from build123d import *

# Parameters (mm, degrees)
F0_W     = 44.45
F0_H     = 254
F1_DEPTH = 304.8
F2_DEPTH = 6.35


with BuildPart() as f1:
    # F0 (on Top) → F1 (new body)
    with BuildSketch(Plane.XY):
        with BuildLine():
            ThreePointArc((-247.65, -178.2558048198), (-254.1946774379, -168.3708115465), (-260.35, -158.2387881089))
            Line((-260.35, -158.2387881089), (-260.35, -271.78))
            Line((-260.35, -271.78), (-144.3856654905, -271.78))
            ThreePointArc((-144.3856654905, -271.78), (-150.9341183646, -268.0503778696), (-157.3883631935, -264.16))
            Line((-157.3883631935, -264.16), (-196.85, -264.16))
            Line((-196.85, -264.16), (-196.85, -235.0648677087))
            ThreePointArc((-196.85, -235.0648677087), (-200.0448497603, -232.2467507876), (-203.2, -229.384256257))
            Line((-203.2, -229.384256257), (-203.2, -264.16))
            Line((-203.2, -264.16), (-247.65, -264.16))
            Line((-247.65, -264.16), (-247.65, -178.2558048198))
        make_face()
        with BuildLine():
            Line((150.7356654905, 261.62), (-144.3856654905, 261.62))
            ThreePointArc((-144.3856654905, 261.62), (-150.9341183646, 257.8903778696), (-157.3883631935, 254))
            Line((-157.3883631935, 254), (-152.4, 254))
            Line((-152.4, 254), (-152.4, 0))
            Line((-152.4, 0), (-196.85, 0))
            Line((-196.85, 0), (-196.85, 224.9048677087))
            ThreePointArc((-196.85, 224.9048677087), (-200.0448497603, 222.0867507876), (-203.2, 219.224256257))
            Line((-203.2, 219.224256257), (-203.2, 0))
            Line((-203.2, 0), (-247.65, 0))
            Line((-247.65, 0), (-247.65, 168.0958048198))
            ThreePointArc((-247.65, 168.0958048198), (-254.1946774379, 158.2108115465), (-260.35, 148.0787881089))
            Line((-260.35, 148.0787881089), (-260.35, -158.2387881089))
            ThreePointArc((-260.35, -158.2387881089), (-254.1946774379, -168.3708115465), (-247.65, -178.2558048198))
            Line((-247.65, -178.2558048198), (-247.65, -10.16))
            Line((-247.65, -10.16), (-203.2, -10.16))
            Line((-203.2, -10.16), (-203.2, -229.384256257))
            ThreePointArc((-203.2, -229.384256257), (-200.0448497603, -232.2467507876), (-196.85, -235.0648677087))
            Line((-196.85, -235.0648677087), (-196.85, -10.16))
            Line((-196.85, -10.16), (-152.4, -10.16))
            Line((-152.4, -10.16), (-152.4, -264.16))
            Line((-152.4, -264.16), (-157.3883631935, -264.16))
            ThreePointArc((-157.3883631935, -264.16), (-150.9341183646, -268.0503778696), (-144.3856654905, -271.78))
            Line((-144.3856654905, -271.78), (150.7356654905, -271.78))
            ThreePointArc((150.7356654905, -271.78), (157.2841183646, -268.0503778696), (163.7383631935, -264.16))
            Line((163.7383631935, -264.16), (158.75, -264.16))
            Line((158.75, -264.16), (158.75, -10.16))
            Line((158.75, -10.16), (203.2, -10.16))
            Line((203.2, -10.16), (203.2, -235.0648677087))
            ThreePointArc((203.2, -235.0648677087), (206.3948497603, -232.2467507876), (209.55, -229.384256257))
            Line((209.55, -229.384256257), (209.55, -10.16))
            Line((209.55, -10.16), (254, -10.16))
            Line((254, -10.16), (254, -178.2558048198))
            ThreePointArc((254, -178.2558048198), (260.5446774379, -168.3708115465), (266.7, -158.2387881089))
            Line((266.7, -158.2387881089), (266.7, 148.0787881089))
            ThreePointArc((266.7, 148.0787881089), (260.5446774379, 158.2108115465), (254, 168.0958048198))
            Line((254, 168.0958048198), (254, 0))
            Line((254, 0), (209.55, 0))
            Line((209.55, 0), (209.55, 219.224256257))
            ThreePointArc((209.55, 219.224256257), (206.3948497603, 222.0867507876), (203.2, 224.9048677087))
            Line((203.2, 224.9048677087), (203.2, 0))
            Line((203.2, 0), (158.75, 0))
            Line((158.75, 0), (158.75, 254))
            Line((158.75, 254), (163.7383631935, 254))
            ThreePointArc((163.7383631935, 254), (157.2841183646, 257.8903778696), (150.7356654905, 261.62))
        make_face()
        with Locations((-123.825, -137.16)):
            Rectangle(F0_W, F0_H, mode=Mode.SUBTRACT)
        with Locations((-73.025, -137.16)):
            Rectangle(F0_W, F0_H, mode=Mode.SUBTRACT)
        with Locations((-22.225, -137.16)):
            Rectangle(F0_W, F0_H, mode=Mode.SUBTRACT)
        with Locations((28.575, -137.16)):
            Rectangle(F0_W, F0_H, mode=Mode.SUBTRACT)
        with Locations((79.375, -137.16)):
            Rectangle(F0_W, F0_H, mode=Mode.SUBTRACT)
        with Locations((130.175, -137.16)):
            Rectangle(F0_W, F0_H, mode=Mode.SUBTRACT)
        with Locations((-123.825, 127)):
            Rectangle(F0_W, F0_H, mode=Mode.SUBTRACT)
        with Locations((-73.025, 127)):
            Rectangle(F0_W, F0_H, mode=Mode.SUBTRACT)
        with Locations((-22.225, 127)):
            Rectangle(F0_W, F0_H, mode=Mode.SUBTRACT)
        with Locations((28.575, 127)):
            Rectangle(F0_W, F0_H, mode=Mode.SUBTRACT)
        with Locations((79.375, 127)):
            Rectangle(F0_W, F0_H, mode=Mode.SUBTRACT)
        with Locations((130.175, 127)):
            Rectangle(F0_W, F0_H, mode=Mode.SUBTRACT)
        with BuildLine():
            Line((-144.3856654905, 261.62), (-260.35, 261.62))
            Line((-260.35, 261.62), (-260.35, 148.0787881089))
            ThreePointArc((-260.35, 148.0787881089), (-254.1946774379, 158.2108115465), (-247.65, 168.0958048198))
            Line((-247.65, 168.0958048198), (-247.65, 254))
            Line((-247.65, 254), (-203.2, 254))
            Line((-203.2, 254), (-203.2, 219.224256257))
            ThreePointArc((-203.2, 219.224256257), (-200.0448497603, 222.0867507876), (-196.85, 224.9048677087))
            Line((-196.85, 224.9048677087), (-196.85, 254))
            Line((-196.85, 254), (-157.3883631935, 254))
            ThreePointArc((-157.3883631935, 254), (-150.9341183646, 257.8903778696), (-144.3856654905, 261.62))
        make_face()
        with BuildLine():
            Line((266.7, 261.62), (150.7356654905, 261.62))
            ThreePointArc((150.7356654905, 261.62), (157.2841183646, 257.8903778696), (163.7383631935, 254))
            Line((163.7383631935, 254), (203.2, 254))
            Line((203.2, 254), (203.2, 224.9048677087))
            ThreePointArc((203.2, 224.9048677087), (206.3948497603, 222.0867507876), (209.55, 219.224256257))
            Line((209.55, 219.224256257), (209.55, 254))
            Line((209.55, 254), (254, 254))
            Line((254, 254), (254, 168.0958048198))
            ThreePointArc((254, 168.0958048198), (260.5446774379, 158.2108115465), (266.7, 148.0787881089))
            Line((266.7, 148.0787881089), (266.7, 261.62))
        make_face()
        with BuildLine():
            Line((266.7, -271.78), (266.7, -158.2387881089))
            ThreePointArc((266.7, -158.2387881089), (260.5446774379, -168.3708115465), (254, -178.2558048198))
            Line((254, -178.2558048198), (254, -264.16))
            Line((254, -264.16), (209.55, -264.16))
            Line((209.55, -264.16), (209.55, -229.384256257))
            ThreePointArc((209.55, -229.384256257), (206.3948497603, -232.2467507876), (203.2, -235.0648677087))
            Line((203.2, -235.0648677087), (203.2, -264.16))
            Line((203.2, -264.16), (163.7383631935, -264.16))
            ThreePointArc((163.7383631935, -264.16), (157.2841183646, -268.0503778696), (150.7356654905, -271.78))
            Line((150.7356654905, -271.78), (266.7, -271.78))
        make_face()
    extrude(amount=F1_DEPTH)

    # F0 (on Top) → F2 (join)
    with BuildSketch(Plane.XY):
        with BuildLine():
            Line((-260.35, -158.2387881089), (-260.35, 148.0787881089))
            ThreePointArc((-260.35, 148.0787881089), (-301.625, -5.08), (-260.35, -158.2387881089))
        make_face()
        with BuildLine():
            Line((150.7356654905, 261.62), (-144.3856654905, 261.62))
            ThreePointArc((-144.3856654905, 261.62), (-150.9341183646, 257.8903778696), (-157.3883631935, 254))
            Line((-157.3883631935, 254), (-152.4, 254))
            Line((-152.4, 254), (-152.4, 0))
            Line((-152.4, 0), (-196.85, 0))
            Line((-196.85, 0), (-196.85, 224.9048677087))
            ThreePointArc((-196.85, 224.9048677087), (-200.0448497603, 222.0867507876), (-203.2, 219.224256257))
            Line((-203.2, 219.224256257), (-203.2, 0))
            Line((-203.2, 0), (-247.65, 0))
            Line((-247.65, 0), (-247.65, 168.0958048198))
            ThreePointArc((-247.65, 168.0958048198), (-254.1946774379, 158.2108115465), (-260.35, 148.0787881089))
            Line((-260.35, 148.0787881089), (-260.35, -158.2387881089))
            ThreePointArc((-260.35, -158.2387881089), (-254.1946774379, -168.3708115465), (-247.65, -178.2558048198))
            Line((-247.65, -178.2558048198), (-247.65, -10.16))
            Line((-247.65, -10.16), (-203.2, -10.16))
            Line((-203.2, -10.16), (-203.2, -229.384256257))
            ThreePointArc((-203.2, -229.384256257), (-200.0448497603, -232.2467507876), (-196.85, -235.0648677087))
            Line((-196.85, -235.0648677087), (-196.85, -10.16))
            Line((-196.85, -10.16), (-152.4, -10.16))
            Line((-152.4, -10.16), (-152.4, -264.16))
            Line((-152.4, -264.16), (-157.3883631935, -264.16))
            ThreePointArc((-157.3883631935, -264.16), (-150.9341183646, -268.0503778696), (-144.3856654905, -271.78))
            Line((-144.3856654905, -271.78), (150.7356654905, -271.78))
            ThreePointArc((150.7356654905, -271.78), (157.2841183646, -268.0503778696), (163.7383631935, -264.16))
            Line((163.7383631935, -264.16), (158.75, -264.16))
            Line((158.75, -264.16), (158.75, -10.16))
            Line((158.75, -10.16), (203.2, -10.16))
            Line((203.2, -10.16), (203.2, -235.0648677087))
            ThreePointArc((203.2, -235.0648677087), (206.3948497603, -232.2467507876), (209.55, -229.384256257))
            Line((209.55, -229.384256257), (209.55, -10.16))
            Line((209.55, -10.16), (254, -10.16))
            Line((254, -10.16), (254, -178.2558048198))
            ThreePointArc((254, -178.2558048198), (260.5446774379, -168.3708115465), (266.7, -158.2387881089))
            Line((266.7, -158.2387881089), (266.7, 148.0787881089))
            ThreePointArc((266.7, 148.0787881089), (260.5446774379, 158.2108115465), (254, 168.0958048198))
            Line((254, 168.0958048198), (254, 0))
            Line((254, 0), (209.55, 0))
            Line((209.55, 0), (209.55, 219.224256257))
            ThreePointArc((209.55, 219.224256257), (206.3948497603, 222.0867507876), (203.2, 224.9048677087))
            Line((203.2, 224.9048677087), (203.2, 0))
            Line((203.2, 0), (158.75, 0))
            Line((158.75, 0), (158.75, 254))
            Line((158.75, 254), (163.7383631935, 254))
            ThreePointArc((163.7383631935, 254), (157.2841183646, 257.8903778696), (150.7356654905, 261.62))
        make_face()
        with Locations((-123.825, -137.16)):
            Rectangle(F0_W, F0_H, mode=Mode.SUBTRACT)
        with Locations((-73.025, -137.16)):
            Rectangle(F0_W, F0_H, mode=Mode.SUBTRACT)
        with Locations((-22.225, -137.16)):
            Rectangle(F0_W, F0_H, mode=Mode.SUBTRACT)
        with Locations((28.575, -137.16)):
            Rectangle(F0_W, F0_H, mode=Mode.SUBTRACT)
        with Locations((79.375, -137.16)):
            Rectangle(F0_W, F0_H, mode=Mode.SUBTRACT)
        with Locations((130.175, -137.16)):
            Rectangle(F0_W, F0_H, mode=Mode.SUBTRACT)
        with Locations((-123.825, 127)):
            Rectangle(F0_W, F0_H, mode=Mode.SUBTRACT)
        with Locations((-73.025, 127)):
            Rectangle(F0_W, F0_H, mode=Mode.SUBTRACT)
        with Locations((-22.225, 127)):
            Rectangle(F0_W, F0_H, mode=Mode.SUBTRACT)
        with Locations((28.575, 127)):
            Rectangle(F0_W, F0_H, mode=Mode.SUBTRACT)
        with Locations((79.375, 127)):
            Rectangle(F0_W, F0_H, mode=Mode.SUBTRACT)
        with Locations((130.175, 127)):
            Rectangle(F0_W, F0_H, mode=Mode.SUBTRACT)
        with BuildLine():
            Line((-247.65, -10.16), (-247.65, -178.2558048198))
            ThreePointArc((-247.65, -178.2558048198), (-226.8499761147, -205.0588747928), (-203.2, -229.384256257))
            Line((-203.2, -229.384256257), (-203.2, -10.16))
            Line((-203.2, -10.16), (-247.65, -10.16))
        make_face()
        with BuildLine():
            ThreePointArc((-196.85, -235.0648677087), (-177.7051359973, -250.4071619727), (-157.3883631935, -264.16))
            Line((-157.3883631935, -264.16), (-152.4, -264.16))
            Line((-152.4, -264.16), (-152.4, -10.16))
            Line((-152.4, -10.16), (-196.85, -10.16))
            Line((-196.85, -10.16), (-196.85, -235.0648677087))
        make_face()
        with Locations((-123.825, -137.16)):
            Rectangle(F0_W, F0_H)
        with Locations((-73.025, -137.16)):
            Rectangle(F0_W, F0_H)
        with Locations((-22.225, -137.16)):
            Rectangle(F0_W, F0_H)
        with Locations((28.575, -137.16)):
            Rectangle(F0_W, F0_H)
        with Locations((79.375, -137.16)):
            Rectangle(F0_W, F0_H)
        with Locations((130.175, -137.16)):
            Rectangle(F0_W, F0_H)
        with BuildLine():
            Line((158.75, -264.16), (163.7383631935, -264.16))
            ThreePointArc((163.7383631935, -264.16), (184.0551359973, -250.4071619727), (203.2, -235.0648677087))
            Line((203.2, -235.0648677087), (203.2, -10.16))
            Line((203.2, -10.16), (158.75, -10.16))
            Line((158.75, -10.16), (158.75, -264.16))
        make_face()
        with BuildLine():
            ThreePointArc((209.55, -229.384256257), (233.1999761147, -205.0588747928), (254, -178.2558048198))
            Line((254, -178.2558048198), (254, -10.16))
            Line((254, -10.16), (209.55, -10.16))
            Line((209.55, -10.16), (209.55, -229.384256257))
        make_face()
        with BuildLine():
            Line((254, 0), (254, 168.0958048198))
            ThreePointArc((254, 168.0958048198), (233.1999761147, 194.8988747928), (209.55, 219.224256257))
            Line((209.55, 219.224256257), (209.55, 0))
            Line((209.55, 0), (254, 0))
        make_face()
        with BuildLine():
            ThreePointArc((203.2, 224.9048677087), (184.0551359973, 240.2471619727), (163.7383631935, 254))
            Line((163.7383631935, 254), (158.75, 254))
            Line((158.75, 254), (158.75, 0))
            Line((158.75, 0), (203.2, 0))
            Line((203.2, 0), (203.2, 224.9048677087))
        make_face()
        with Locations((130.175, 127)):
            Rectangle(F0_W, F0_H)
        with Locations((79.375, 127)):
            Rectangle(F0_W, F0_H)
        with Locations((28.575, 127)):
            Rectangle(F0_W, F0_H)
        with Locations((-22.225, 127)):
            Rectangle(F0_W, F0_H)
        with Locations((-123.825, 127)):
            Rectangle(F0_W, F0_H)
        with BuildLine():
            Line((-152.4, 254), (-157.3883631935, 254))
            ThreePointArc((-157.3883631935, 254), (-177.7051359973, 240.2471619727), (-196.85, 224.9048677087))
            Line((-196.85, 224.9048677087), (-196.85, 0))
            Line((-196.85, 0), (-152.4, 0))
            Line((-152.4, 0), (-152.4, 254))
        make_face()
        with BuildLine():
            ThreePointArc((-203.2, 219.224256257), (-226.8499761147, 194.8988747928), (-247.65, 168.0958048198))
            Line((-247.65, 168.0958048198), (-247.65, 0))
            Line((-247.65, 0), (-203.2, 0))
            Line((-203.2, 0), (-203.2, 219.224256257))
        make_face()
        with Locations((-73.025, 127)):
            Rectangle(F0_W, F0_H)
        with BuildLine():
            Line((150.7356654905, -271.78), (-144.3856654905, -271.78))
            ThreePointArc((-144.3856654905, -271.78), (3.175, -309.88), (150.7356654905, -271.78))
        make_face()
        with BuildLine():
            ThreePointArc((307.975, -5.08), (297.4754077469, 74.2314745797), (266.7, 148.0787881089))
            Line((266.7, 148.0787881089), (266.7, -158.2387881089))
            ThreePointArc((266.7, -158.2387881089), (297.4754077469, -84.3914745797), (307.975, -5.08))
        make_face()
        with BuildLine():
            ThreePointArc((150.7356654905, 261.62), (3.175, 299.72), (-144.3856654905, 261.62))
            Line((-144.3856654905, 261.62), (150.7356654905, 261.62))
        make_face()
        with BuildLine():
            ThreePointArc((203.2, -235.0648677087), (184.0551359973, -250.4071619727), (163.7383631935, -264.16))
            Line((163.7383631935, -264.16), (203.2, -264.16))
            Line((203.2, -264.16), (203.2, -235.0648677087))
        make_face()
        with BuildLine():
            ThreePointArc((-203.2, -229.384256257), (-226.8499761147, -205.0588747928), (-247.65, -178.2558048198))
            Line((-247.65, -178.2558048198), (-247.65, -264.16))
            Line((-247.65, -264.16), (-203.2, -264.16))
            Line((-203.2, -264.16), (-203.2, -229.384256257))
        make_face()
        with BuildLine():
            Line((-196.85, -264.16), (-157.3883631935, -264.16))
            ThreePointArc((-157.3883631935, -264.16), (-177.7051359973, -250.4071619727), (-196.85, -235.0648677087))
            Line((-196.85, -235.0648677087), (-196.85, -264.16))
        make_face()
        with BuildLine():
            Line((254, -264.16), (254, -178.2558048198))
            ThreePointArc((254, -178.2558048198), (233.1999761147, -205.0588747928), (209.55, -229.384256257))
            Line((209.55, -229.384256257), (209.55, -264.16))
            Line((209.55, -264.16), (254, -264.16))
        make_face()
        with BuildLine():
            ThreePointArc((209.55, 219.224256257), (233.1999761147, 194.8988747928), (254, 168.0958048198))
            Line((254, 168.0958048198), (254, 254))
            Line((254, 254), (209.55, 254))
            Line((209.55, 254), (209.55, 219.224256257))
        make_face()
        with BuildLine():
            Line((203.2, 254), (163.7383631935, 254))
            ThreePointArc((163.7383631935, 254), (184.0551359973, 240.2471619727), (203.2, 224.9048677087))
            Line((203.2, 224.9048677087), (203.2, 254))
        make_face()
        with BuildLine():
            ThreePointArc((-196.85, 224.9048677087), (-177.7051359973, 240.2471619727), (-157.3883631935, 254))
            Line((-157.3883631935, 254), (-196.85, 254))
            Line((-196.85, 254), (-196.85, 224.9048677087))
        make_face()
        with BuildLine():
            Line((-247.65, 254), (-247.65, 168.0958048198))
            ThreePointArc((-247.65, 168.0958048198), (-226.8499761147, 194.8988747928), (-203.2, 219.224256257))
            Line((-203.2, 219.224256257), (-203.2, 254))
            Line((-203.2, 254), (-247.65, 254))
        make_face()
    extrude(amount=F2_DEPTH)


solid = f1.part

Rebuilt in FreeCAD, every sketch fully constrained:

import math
import FreeCAD as App
import Part
import Sketcher
Q = App.Units.Quantity


def add_polygon(sketch, points):
    """Adds a closed chain of lines whose ends are joined by coincident constraints."""
    first, n = sketch.GeometryCount, len(points)
    for a, b in zip(points, points[1:] + points[:1]):
        sketch.addGeometry(Part.LineSegment(App.Vector(*a, 0), App.Vector(*b, 0)), False)
    for i in range(n):
        sketch.addConstraint(Sketcher.Constraint("Coincident", first + i, 2, first + (i + 1) % n, 1))

doc = App.newDocument("Part")
body = doc.addObject("PartDesign::Body", "Body")

# Sketch on XY plane
sketch1 = body.newObject("Sketcher::SketchObject", "Sketch")
sketch1.AttachmentSupport = (doc.getObject("XY_Plane"), [""])
sketch1.MapMode = "FlatFace"
add_polygon(sketch1, [(-260, -272), (267, -272), (267, 262), (-260, 262)])  # lines 0-3
add_polygon(sketch1, [(159, -264), (159, -10), (203, -10), (203, -264)])  # lines 4-7
add_polygon(sketch1, [(210, -10), (254, -10), (254, -264), (210, -264)])  # lines 8-11
add_polygon(sketch1, [(254, 0), (210, 0), (210, 254), (254, 254)])  # lines 12-15
add_polygon(sketch1, [(203, 0), (159, 0), (159, 254), (203, 254)])  # lines 16-19
add_polygon(sketch1, [(-248, 0), (-248, 254), (-203, 254), (-203, 0)])  # lines 20-23
add_polygon(sketch1, [(-197, 0), (-197, 254), (-152, 254), (-152, 0)])  # lines 24-27
add_polygon(sketch1, [(-203, -264), (-248, -264), (-248, -10), (-203, -10)])  # lines 28-31
add_polygon(sketch1, [(-197, -264), (-197, -10), (-152, -10), (-152, -264)])  # lines 32-35
add_polygon(sketch1, [(-102, -264), (-146, -264), (-146, -10), (-102, -10)])  # lines 36-39
add_polygon(sketch1, [(-51, -264), (-95, -264), (-95, -10), (-51, -10)])  # lines 40-43
add_polygon(sketch1, [(0, -264), (-44, -264), (-44, -10), (0, -10)])  # lines 44-47
add_polygon(sketch1, [(51, -264), (6, -264), (6, -10), (51, -10)])  # lines 48-51
add_polygon(sketch1, [(102, -264), (57, -264), (57, -10), (102, -10)])  # lines 52-55
add_polygon(sketch1, [(152, -264), (108, -264), (108, -10), (152, -10)])  # lines 56-59
add_polygon(sketch1, [(-102, 0), (-146, 0), (-146, 254), (-102, 254)])  # lines 60-63
add_polygon(sketch1, [(-51, 0), (-95, 0), (-95, 254), (-51, 254)])  # lines 64-67
add_polygon(sketch1, [(0, 0), (-44, 0), (-44, 254), (0, 254)])  # lines 68-71
add_polygon(sketch1, [(51, 0), (6, 0), (6, 254), (51, 254)])  # lines 72-75
add_polygon(sketch1, [(102, 0), (57, 0), (57, 254), (102, 254)])  # lines 76-79
add_polygon(sketch1, [(152, 0), (108, 0), (108, 254), (152, 254)])  # lines 80-83
sketch1.addConstraint(Sketcher.Constraint("Horizontal", 0))
sketch1.addConstraint(Sketcher.Constraint("Vertical", 1))
sketch1.addConstraint(Sketcher.Constraint("Horizontal", 2))
sketch1.addConstraint(Sketcher.Constraint("Vertical", 3))
sketch1.addConstraint(Sketcher.Constraint("Vertical", 4))
sketch1.addConstraint(Sketcher.Constraint("Horizontal", 5))
sketch1.addConstraint(Sketcher.Constraint("Vertical", 6))
sketch1.addConstraint(Sketcher.Constraint("Horizontal", 7))
sketch1.addConstraint(Sketcher.Constraint("Horizontal", 8))
sketch1.addConstraint(Sketcher.Constraint("Vertical", 9))
sketch1.addConstraint(Sketcher.Constraint("Horizontal", 10))
sketch1.addConstraint(Sketcher.Constraint("Vertical", 11))
sketch1.addConstraint(Sketcher.Constraint("Horizontal", 12))
sketch1.addConstraint(Sketcher.Constraint("Vertical", 13))
sketch1.addConstraint(Sketcher.Constraint("Horizontal", 14))
sketch1.addConstraint(Sketcher.Constraint("Vertical", 15))
sketch1.addConstraint(Sketcher.Constraint("Horizontal", 16))
sketch1.addConstraint(Sketcher.Constraint("Vertical", 17))
sketch1.addConstraint(Sketcher.Constraint("Horizontal", 18))
sketch1.addConstraint(Sketcher.Constraint("Vertical", 19))
sketch1.addConstraint(Sketcher.Constraint("Vertical", 20))
sketch1.addConstraint(Sketcher.Constraint("Horizontal", 21))
sketch1.addConstraint(Sketcher.Constraint("Vertical", 22))
sketch1.addConstraint(Sketcher.Constraint("Horizontal", 23))
sketch1.addConstraint(Sketcher.Constraint("Vertical", 24))
sketch1.addConstraint(Sketcher.Constraint("Horizontal", 25))
sketch1.addConstraint(Sketcher.Constraint("Vertical", 26))
sketch1.addConstraint(Sketcher.Constraint("Horizontal", 27))
sketch1.addConstraint(Sketcher.Constraint("Horizontal", 28))
sketch1.addConstraint(Sketcher.Constraint("Vertical", 29))
sketch1.addConstraint(Sketcher.Constraint("Horizontal", 30))
sketch1.addConstraint(Sketcher.Constraint("Vertical", 31))
sketch1.addConstraint(Sketcher.Constraint("Vertical", 32))
sketch1.addConstraint(Sketcher.Constraint("Horizontal", 33))
sketch1.addConstraint(Sketcher.Constraint("Vertical", 34))
sketch1.addConstraint(Sketcher.Constraint("Horizontal", 35))
sketch1.addConstraint(Sketcher.Constraint("Horizontal", 36))
sketch1.addConstraint(Sketcher.Constraint("Vertical", 37))
sketch1.addConstraint(Sketcher.Constraint("Horizontal", 38))
sketch1.addConstraint(Sketcher.Constraint("Vertical", 39))
sketch1.addConstraint(Sketcher.Constraint("Horizontal", 40))
sketch1.addConstraint(Sketcher.Constraint("Vertical", 41))
sketch1.addConstraint(Sketcher.Constraint("Horizontal", 42))
sketch1.addConstraint(Sketcher.Constraint("Vertical", 43))
sketch1.addConstraint(Sketcher.Constraint("Horizontal", 44))
sketch1.addConstraint(Sketcher.Constraint("Vertical", 45))
sketch1.addConstraint(Sketcher.Constraint("Horizontal", 46))
sketch1.addConstraint(Sketcher.Constraint("Vertical", 47))
sketch1.addConstraint(Sketcher.Constraint("Horizontal", 48))
sketch1.addConstraint(Sketcher.Constraint("Vertical", 49))
sketch1.addConstraint(Sketcher.Constraint("Horizontal", 50))
sketch1.addConstraint(Sketcher.Constraint("Vertical", 51))
sketch1.addConstraint(Sketcher.Constraint("Horizontal", 52))
sketch1.addConstraint(Sketcher.Constraint("Vertical", 53))
sketch1.addConstraint(Sketcher.Constraint("Horizontal", 54))
sketch1.addConstraint(Sketcher.Constraint("Vertical", 55))
sketch1.addConstraint(Sketcher.Constraint("Horizontal", 56))
sketch1.addConstraint(Sketcher.Constraint("Vertical", 57))
sketch1.addConstraint(Sketcher.Constraint("Horizontal", 58))
sketch1.addConstraint(Sketcher.Constraint("Vertical", 59))
sketch1.addConstraint(Sketcher.Constraint("Horizontal", 60))
sketch1.addConstraint(Sketcher.Constraint("Vertical", 61))
sketch1.addConstraint(Sketcher.Constraint("Horizontal", 62))
sketch1.addConstraint(Sketcher.Constraint("Vertical", 63))
sketch1.addConstraint(Sketcher.Constraint("Horizontal", 64))
sketch1.addConstraint(Sketcher.Constraint("Vertical", 65))
sketch1.addConstraint(Sketcher.Constraint("Horizontal", 66))
sketch1.addConstraint(Sketcher.Constraint("Vertical", 67))
sketch1.addConstraint(Sketcher.Constraint("Horizontal", 68))
sketch1.addConstraint(Sketcher.Constraint("Vertical", 69))
sketch1.addConstraint(Sketcher.Constraint("Horizontal", 70))
sketch1.addConstraint(Sketcher.Constraint("Vertical", 71))
sketch1.addConstraint(Sketcher.Constraint("Horizontal", 72))
sketch1.addConstraint(Sketcher.Constraint("Vertical", 73))
sketch1.addConstraint(Sketcher.Constraint("Horizontal", 74))
sketch1.addConstraint(Sketcher.Constraint("Vertical", 75))
sketch1.addConstraint(Sketcher.Constraint("Horizontal", 76))
sketch1.addConstraint(Sketcher.Constraint("Vertical", 77))
sketch1.addConstraint(Sketcher.Constraint("Horizontal", 78))
sketch1.addConstraint(Sketcher.Constraint("Vertical", 79))
sketch1.addConstraint(Sketcher.Constraint("Horizontal", 80))
sketch1.addConstraint(Sketcher.Constraint("Vertical", 81))
sketch1.addConstraint(Sketcher.Constraint("Horizontal", 82))
sketch1.addConstraint(Sketcher.Constraint("Vertical", 83))
sketch1.addConstraint(Sketcher.Constraint("Coincident", 71, 2, -1, 1))
sketch1.addConstraint(Sketcher.Constraint("Symmetric", 19, 2, 22, 2, -1, 1))
sketch1.addConstraint(Sketcher.Constraint("Symmetric", 67, 2, 75, 2, -1, 1))
sketch1.addConstraint(Sketcher.Constraint("Symmetric", 63, 2, 79, 2, -1, 1))
sketch1.addConstraint(Sketcher.Constraint("Symmetric", 26, 2, 83, 2, -1, 1))
sketch1.addConstraint(Sketcher.Constraint("Symmetric", 5, 2, 30, 2, -2))
sketch1.addConstraint(Sketcher.Constraint("Symmetric", 42, 2, 50, 2, -2))
sketch1.addConstraint(Sketcher.Constraint("Symmetric", 38, 2, 54, 2, -2))
sketch1.addConstraint(Sketcher.Constraint("Symmetric", 33, 2, 58, 2, -2))
sketch1.addConstraint(Sketcher.Constraint("PointOnObject", 12, 2, -1))
sketch1.addConstraint(Sketcher.Constraint("PointOnObject", 16, 2, -1))
sketch1.addConstraint(Sketcher.Constraint("PointOnObject", 26, 2, -1))
sketch1.addConstraint(Sketcher.Constraint("PointOnObject", 46, 2, -2))
sketch1.addConstraint(Sketcher.Constraint("PointOnObject", 60, 2, -1))
sketch1.addConstraint(Sketcher.Constraint("PointOnObject", 64, 2, -1))
sketch1.addConstraint(Sketcher.Constraint("Horizontal", 5, 2, 8, 2))
sketch1.addConstraint(Sketcher.Constraint("Horizontal", 7, 2, 9, 2))
sketch1.addConstraint(Sketcher.Constraint("Horizontal", 14, 2, 17, 2))
sketch1.addConstraint(Sketcher.Constraint("Horizontal", 18, 2, 20, 2))
sketch1.addConstraint(Sketcher.Constraint("Horizontal", 21, 2, 24, 2))
sketch1.addConstraint(Sketcher.Constraint("Horizontal", 10, 2, 28, 2))
sketch1.addConstraint(Sketcher.Constraint("Horizontal", 30, 2, 32, 2))
sketch1.addConstraint(Sketcher.Constraint("Horizontal", 31, 2, 34, 2))
sketch1.addConstraint(Sketcher.Constraint("Horizontal", 35, 2, 36, 2))
sketch1.addConstraint(Sketcher.Constraint("Horizontal", 33, 2, 37, 2))
sketch1.addConstraint(Sketcher.Constraint("Horizontal", 39, 2, 40, 2))
sketch1.addConstraint(Sketcher.Constraint("Horizontal", 38, 2, 41, 2))
sketch1.addConstraint(Sketcher.Constraint("Horizontal", 43, 2, 44, 2))
sketch1.addConstraint(Sketcher.Constraint("Horizontal", 42, 2, 45, 2))
sketch1.addConstraint(Sketcher.Constraint("Horizontal", 47, 2, 48, 2))
sketch1.addConstraint(Sketcher.Constraint("Horizontal", 51, 2, 52, 2))
sketch1.addConstraint(Sketcher.Constraint("Horizontal", 55, 2, 56, 2))
sketch1.addConstraint(Sketcher.Constraint("Horizontal", 25, 2, 61, 2))
sketch1.addConstraint(Sketcher.Constraint("Horizontal", 62, 2, 65, 2))
sketch1.addConstraint(Sketcher.Constraint("Horizontal", 66, 2, 69, 2))
sketch1.addConstraint(Sketcher.Constraint("Horizontal", 70, 2, 73, 2))
sketch1.addConstraint(Sketcher.Constraint("Horizontal", 74, 2, 77, 2))
sketch1.addConstraint(Sketcher.Constraint("Horizontal", 78, 2, 81, 2))
sketch1.addConstraint(Sketcher.Constraint("Vertical", 11, 2, 12, 2))
sketch1.addConstraint(Sketcher.Constraint("Vertical", 9, 2, 14, 2))
sketch1.addConstraint(Sketcher.Constraint("Vertical", 7, 2, 16, 2))
sketch1.addConstraint(Sketcher.Constraint("Vertical", 6, 2, 18, 2))
sketch1.addConstraint(Sketcher.Constraint("Vertical", 23, 2, 28, 2))
sketch1.addConstraint(Sketcher.Constraint("Vertical", 27, 2, 32, 2))
sketch1.addConstraint(Sketcher.Constraint("Vertical", 26, 2, 33, 2))
sketch1.addConstraint(Sketcher.Constraint("Vertical", 37, 2, 60, 2))
sketch1.addConstraint(Sketcher.Constraint("Vertical", 39, 2, 62, 2))
sketch1.addConstraint(Sketcher.Constraint("Vertical", 41, 2, 64, 2))
sketch1.addConstraint(Sketcher.Constraint("Vertical", 43, 2, 66, 2))
sketch1.addConstraint(Sketcher.Constraint("Vertical", 45, 2, 68, 2))
sketch1.addConstraint(Sketcher.Constraint("Vertical", 49, 2, 72, 2))
sketch1.addConstraint(Sketcher.Constraint("Vertical", 53, 2, 76, 2))
sketch1.addConstraint(Sketcher.Constraint("Vertical", 57, 2, 80, 2))
sketch1.addConstraint(Sketcher.Constraint("Equal", 7, 8))
sketch1.addConstraint(Sketcher.Constraint("Equal", 18, 21))
sketch1.addConstraint(Sketcher.Constraint("Equal", 23, 25))
sketch1.addConstraint(Sketcher.Constraint("Equal", 35, 36))
sketch1.addConstraint(Sketcher.Constraint("Equal", 38, 40))
sketch1.addConstraint(Sketcher.Constraint("Equal", 42, 44))
sketch1.addConstraint(Sketcher.Constraint("Equal", 46, 48))
sketch1.addConstraint(Sketcher.Constraint("Equal", 50, 52))
sketch1.addConstraint(Sketcher.Constraint("Equal", 54, 56))
sketch1.addConstraint(Sketcher.Constraint("Equal", 11, 13))
sketch1.addConstraint(Sketcher.Constraint("DistanceY", 1, 1, 1, 2, Q("21 in")))
sketch1.addConstraint(Sketcher.Constraint("DistanceY", 4, 1, 4, 2, Q("10 in")))
sketch1.addConstraint(Sketcher.Constraint("DistanceX", -1, 1, 5, 2, Q("8 in")))
sketch1.addConstraint(Sketcher.Constraint("DistanceX", -1, 1, 8, 2, Q("10 in")))
sketch1.addConstraint(Sketcher.Constraint("DistanceX", 25, 2, -1, 1, Q("6 in")))
sketch1.addConstraint(Sketcher.Constraint("DistanceX", 38, 2, -1, 1, Q("4 in")))
sketch1.addConstraint(Sketcher.Constraint("DistanceX", 42, 2, -1, 1, Q("2 in")))
sketch1.addConstraint(Sketcher.Constraint("DistanceX", 0, 1, 0, 2, Q("20.75 in")))
sketch1.addConstraint(Sketcher.Constraint("DistanceX", 5, 1, 5, 2, Q("1.75 in")))
sketch1.addConstraint(Sketcher.Constraint("DistanceX", -1, 1, 0, 2, Q("10.5 in")))
sketch1.addConstraint(Sketcher.Constraint("DistanceY", 0, 2, -1, 1, Q("10.7 in")))
sketch1.addConstraint(Sketcher.Constraint("DistanceY", 4, 2, -1, 1, Q("0.4 in")))
pad1 = body.newObject("PartDesign::Pad", "Pad")
pad1.Profile = sketch1
pad1.Length = Q("12 in")

# Sketch on XY plane
sketch2 = body.newObject("Sketcher::SketchObject", "Sketch001")
sketch2.AttachmentSupport = (doc.getObject("XY_Plane"), [""])
sketch2.MapMode = "FlatFace"
sketch2.addGeometry(Part.ArcOfCircle(Part.Circle(App.Vector(3, -5, 0), App.Vector(0, 0, 1), 305), math.radians(150), math.radians(210)), False)
sketch2.addGeometry(Part.ArcOfCircle(Part.Circle(App.Vector(3, -5, 0), App.Vector(0, 0, 1), 305), math.radians(-149.84), math.radians(-145.38)), False)
sketch2.addGeometry(Part.LineSegment(App.Vector(-248, -178, 0), App.Vector(-248, -264, 0)), False)
sketch2.addGeometry(Part.LineSegment(App.Vector(-248, -264, 0), App.Vector(-203, -264, 0)), False)
sketch2.addGeometry(Part.LineSegment(App.Vector(-203, -264, 0), App.Vector(-203, -229, 0)), False)
sketch2.addGeometry(Part.ArcOfCircle(Part.Circle(App.Vector(3, -5, 0), App.Vector(0, 0, 1), 305), math.radians(-132.62), math.radians(-131.01)), False)
sketch2.addGeometry(Part.LineSegment(App.Vector(-197, -235, 0), App.Vector(-197, -264, 0)), False)
sketch2.addGeometry(Part.LineSegment(App.Vector(-197, -264, 0), App.Vector(-157, -264, 0)), False)
sketch2.addGeometry(Part.ArcOfCircle(Part.Circle(App.Vector(3, -5, 0), App.Vector(0, 0, 1), 305), math.radians(-121.79), math.radians(-118.96)), False)
sketch2.addGeometry(Part.ArcOfCircle(Part.Circle(App.Vector(3, -5, 0), App.Vector(0, 0, 1), 305), math.radians(-119), math.radians(-61)), False)
sketch2.addGeometry(Part.ArcOfCircle(Part.Circle(App.Vector(3, -5, 0), App.Vector(0, 0, 1), 305), math.radians(-61.04), math.radians(-58.21)), False)
sketch2.addGeometry(Part.LineSegment(App.Vector(164, -264, 0), App.Vector(203, -264, 0)), False)
sketch2.addGeometry(Part.LineSegment(App.Vector(203, -264, 0), App.Vector(203, -235, 0)), False)
sketch2.addGeometry(Part.ArcOfCircle(Part.Circle(App.Vector(3, -5, 0), App.Vector(0, 0, 1), 305), math.radians(-48.99), math.radians(-47.38)), False)
sketch2.addGeometry(Part.LineSegment(App.Vector(210, -229, 0), App.Vector(210, -264, 0)), False)
sketch2.addGeometry(Part.LineSegment(App.Vector(210, -264, 0), App.Vector(254, -264, 0)), False)
sketch2.addGeometry(Part.LineSegment(App.Vector(254, -264, 0), App.Vector(254, -178, 0)), False)
sketch2.addGeometry(Part.ArcOfCircle(Part.Circle(App.Vector(3, -5, 0), App.Vector(0, 0, 1), 305), math.radians(-34.62), math.radians(-30.16)), False)
sketch2.addGeometry(Part.ArcOfCircle(Part.Circle(App.Vector(3, -5, 0), App.Vector(0, 0, 1), 305), math.radians(-30), math.radians(30)), False)
sketch2.addGeometry(Part.ArcOfCircle(Part.Circle(App.Vector(3, -5, 0), App.Vector(0, 0, 1), 305), math.radians(30.16), math.radians(34.62)), False)
sketch2.addGeometry(Part.LineSegment(App.Vector(254, 168, 0), App.Vector(254, 254, 0)), False)
sketch2.addGeometry(Part.LineSegment(App.Vector(254, 254, 0), App.Vector(210, 254, 0)), False)
sketch2.addGeometry(Part.LineSegment(App.Vector(210, 254, 0), App.Vector(210, 219, 0)), False)
sketch2.addGeometry(Part.ArcOfCircle(Part.Circle(App.Vector(3, -5, 0), App.Vector(0, 0, 1), 305), math.radians(47.38), math.radians(48.99)), False)
sketch2.addGeometry(Part.LineSegment(App.Vector(203, 225, 0), App.Vector(203, 254, 0)), False)
sketch2.addGeometry(Part.LineSegment(App.Vector(203, 254, 0), App.Vector(164, 254, 0)), False)
sketch2.addGeometry(Part.ArcOfCircle(Part.Circle(App.Vector(3, -5, 0), App.Vector(0, 0, 1), 305), math.radians(58.21), math.radians(61.04)), False)
sketch2.addGeometry(Part.ArcOfCircle(Part.Circle(App.Vector(3, -5, 0), App.Vector(0, 0, 1), 305), math.radians(61), math.radians(119)), False)
sketch2.addGeometry(Part.ArcOfCircle(Part.Circle(App.Vector(3, -5, 0), App.Vector(0, 0, 1), 305), math.radians(118.96), math.radians(121.79)), False)
sketch2.addGeometry(Part.LineSegment(App.Vector(-157, 254, 0), App.Vector(-197, 254, 0)), False)
sketch2.addGeometry(Part.LineSegment(App.Vector(-197, 254, 0), App.Vector(-197, 225, 0)), False)
sketch2.addGeometry(Part.ArcOfCircle(Part.Circle(App.Vector(3, -5, 0), App.Vector(0, 0, 1), 305), math.radians(131.01), math.radians(132.62)), False)
sketch2.addGeometry(Part.LineSegment(App.Vector(-203, 219, 0), App.Vector(-203, 254, 0)), False)
sketch2.addGeometry(Part.LineSegment(App.Vector(-203, 254, 0), App.Vector(-248, 254, 0)), False)
sketch2.addGeometry(Part.LineSegment(App.Vector(-248, 254, 0), App.Vector(-248, 168, 0)), False)
sketch2.addGeometry(Part.ArcOfCircle(Part.Circle(App.Vector(3, -5, 0), App.Vector(0, 0, 1), 305), math.radians(145.38), math.radians(149.84)), False)
sketch2.addConstraint(Sketcher.Constraint("Tangent", 0, 2, 1, 1))
sketch2.addConstraint(Sketcher.Constraint("Coincident", 1, 2, 2, 1))
sketch2.addConstraint(Sketcher.Constraint("Coincident", 2, 2, 3, 1))
sketch2.addConstraint(Sketcher.Constraint("Coincident", 3, 2, 4, 1))
sketch2.addConstraint(Sketcher.Constraint("Coincident", 4, 2, 5, 1))
sketch2.addConstraint(Sketcher.Constraint("Coincident", 5, 2, 6, 1))
sketch2.addConstraint(Sketcher.Constraint("Coincident", 6, 2, 7, 1))
sketch2.addConstraint(Sketcher.Constraint("Coincident", 7, 2, 8, 1))
sketch2.addConstraint(Sketcher.Constraint("Tangent", 8, 2, 9, 1))
sketch2.addConstraint(Sketcher.Constraint("Tangent", 9, 2, 10, 1))
sketch2.addConstraint(Sketcher.Constraint("Coincident", 10, 2, 11, 1))
sketch2.addConstraint(Sketcher.Constraint("Coincident", 11, 2, 12, 1))
sketch2.addConstraint(Sketcher.Constraint("Coincident", 12, 2, 13, 1))
sketch2.addConstraint(Sketcher.Constraint("Coincident", 13, 2, 14, 1))
sketch2.addConstraint(Sketcher.Constraint("Coincident", 14, 2, 15, 1))
sketch2.addConstraint(Sketcher.Constraint("Coincident", 15, 2, 16, 1))
sketch2.addConstraint(Sketcher.Constraint("Coincident", 16, 2, 17, 1))
sketch2.addConstraint(Sketcher.Constraint("Tangent", 17, 2, 18, 1))
sketch2.addConstraint(Sketcher.Constraint("Tangent", 18, 2, 19, 1))
sketch2.addConstraint(Sketcher.Constraint("Coincident", 19, 2, 20, 1))
sketch2.addConstraint(Sketcher.Constraint("Coincident", 20, 2, 21, 1))
sketch2.addConstraint(Sketcher.Constraint("Coincident", 21, 2, 22, 1))
sketch2.addConstraint(Sketcher.Constraint("Coincident", 22, 2, 23, 1))
sketch2.addConstraint(Sketcher.Constraint("Coincident", 23, 2, 24, 1))
sketch2.addConstraint(Sketcher.Constraint("Coincident", 24, 2, 25, 1))
sketch2.addConstraint(Sketcher.Constraint("Coincident", 25, 2, 26, 1))
sketch2.addConstraint(Sketcher.Constraint("Tangent", 26, 2, 27, 1))
sketch2.addConstraint(Sketcher.Constraint("Tangent", 27, 2, 28, 1))
sketch2.addConstraint(Sketcher.Constraint("Coincident", 28, 2, 29, 1))
sketch2.addConstraint(Sketcher.Constraint("Coincident", 29, 2, 30, 1))
sketch2.addConstraint(Sketcher.Constraint("Coincident", 30, 2, 31, 1))
sketch2.addConstraint(Sketcher.Constraint("Coincident", 31, 2, 32, 1))
sketch2.addConstraint(Sketcher.Constraint("Coincident", 32, 2, 33, 1))
sketch2.addConstraint(Sketcher.Constraint("Coincident", 33, 2, 34, 1))
sketch2.addConstraint(Sketcher.Constraint("Coincident", 34, 2, 35, 1))
sketch2.addConstraint(Sketcher.Constraint("Tangent", 35, 2, 0, 1))
sketch2.addConstraint(Sketcher.Constraint("Vertical", 2))
sketch2.addConstraint(Sketcher.Constraint("Horizontal", 3))
sketch2.addConstraint(Sketcher.Constraint("Vertical", 4))
sketch2.addConstraint(Sketcher.Constraint("Vertical", 6))
sketch2.addConstraint(Sketcher.Constraint("Horizontal", 7))
sketch2.addConstraint(Sketcher.Constraint("Horizontal", 11))
sketch2.addConstraint(Sketcher.Constraint("Vertical", 12))
sketch2.addConstraint(Sketcher.Constraint("Vertical", 14))
sketch2.addConstraint(Sketcher.Constraint("Horizontal", 15))
sketch2.addConstraint(Sketcher.Constraint("Vertical", 16))
sketch2.addConstraint(Sketcher.Constraint("Vertical", 20))
sketch2.addConstraint(Sketcher.Constraint("Horizontal", 21))
sketch2.addConstraint(Sketcher.Constraint("Vertical", 22))
sketch2.addConstraint(Sketcher.Constraint("Vertical", 24))
sketch2.addConstraint(Sketcher.Constraint("Horizontal", 25))
sketch2.addConstraint(Sketcher.Constraint("Horizontal", 29))
sketch2.addConstraint(Sketcher.Constraint("Vertical", 30))
sketch2.addConstraint(Sketcher.Constraint("Vertical", 32))
sketch2.addConstraint(Sketcher.Constraint("Horizontal", 33))
sketch2.addConstraint(Sketcher.Constraint("Vertical", 34))
sketch2.addConstraint(Sketcher.Constraint("Coincident", 5, 3, 0, 3))
sketch2.addConstraint(Sketcher.Constraint("Coincident", 8, 3, 0, 3))
sketch2.addConstraint(Sketcher.Constraint("Coincident", 10, 3, 0, 3))
sketch2.addConstraint(Sketcher.Constraint("Coincident", 13, 3, 0, 3))
sketch2.addConstraint(Sketcher.Constraint("Coincident", 17, 3, 0, 3))
sketch2.addConstraint(Sketcher.Constraint("Coincident", 19, 3, 0, 3))
sketch2.addConstraint(Sketcher.Constraint("Coincident", 23, 3, 0, 3))
sketch2.addConstraint(Sketcher.Constraint("Coincident", 26, 3, 0, 3))
sketch2.addConstraint(Sketcher.Constraint("Coincident", 28, 3, 0, 3))
sketch2.addConstraint(Sketcher.Constraint("Coincident", 31, 3, 0, 3))
sketch2.addConstraint(Sketcher.Constraint("Equal", 0, 1))
sketch2.addConstraint(Sketcher.Constraint("Equal", 1, 5))
sketch2.addConstraint(Sketcher.Constraint("Equal", 5, 8))
sketch2.addConstraint(Sketcher.Constraint("Equal", 10, 13))
sketch2.addConstraint(Sketcher.Constraint("Equal", 13, 17))
sketch2.addConstraint(Sketcher.Constraint("Equal", 19, 23))
sketch2.addConstraint(Sketcher.Constraint("Equal", 23, 26))
sketch2.addConstraint(Sketcher.Constraint("Equal", 28, 31))
sketch2.addConstraint(Sketcher.Constraint("Equal", 31, 35))
sketch2.addConstraint(Sketcher.Constraint("Symmetric", 3, 2, 11, 2, -2))
sketch2.addConstraint(Sketcher.Constraint("Symmetric", 24, 2, 32, 2, -2))
sketch2.addConstraint(Sketcher.Constraint("Horizontal", 3, 2, 6, 2))
sketch2.addConstraint(Sketcher.Constraint("Horizontal", 8, 2, 9, 2))
sketch2.addConstraint(Sketcher.Constraint("Horizontal", 5, 2, 12, 2))
sketch2.addConstraint(Sketcher.Constraint("Horizontal", 4, 2, 13, 2))
sketch2.addConstraint(Sketcher.Constraint("Horizontal", 11, 2, 14, 2))
sketch2.addConstraint(Sketcher.Constraint("Horizontal", 1, 2, 16, 2))
sketch2.addConstraint(Sketcher.Constraint("Horizontal", 0, 2, 17, 2))
sketch2.addConstraint(Sketcher.Constraint("Horizontal", 21, 2, 24, 2))
sketch2.addConstraint(Sketcher.Constraint("Horizontal", 26, 2, 27, 2))
sketch2.addConstraint(Sketcher.Constraint("Horizontal", 25, 2, 28, 2))
sketch2.addConstraint(Sketcher.Constraint("Horizontal", 23, 2, 30, 2))
sketch2.addConstraint(Sketcher.Constraint("Horizontal", 22, 2, 31, 2))
sketch2.addConstraint(Sketcher.Constraint("Horizontal", 19, 2, 34, 2))
sketch2.addConstraint(Sketcher.Constraint("Horizontal", 18, 2, 35, 2))
sketch2.addConstraint(Sketcher.Constraint("Vertical", 17, 2, 18, 2))
sketch2.addConstraint(Sketcher.Constraint("Vertical", 16, 2, 19, 2))
sketch2.addConstraint(Sketcher.Constraint("Vertical", 14, 2, 21, 2))
sketch2.addConstraint(Sketcher.Constraint("Vertical", 10, 2, 25, 2))
sketch2.addConstraint(Sketcher.Constraint("Vertical", 9, 2, 26, 2))
sketch2.addConstraint(Sketcher.Constraint("Radius", 0, Q("12 in")))
sketch2.addConstraint(Sketcher.Constraint("DistanceX", 3, 2, -1, 1, Q("8 in")))
sketch2.addConstraint(Sketcher.Constraint("DistanceX", -1, 1, 15, 2, Q("10 in")))
sketch2.addConstraint(Sketcher.Constraint("DistanceY", -1, 1, 20, 2, Q("10 in")))
sketch2.addConstraint(Sketcher.Constraint("DistanceX", 3, 1, 3, 2, Q("1.75 in")))
sketch2.addConstraint(Sketcher.Constraint("DistanceY", 0, 3, -1, 1, Q("0.2 in")))
sketch2.addConstraint(Sketcher.Constraint("DistanceY", 8, 2, -1, 1, Q("10.7 in")))
sketch2.addConstraint(Sketcher.Constraint("DistanceX", -1, 1, 17, 2, Q("10.5 in")))
pad2 = body.newObject("PartDesign::Pad", "Pad001")
pad2.Profile = sketch2
pad2.Length = Q("0.25 in")

doc.recompute()
